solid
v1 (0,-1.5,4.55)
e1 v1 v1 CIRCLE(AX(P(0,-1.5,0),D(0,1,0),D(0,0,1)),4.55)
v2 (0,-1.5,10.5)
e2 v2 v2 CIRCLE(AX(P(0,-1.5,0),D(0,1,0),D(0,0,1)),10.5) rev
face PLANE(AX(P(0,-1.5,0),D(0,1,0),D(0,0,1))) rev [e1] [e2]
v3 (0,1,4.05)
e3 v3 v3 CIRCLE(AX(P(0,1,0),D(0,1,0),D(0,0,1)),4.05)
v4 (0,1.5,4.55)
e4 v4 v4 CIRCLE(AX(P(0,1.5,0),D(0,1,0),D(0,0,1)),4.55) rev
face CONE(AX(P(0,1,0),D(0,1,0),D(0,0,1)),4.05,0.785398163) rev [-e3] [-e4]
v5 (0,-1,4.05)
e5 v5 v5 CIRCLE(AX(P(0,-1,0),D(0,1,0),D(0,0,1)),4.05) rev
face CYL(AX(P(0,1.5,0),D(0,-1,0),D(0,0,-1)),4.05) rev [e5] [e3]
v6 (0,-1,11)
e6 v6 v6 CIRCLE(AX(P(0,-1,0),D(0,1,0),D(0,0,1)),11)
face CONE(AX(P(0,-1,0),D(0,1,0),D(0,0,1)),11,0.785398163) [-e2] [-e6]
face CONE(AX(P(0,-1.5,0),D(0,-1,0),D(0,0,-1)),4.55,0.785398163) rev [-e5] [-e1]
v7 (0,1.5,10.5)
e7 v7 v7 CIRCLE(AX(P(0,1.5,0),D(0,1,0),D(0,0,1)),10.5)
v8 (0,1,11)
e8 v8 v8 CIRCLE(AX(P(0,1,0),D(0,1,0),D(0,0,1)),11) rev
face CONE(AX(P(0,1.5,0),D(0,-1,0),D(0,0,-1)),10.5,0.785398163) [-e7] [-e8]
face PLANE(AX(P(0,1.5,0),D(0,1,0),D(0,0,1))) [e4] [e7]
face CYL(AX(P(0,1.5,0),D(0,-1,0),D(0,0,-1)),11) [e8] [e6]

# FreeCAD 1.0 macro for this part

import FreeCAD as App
import Part
import Sketcher
Q = App.Units.Quantity


def edges_at(feature, points):
    """Names of the edges that pass closest to the given points."""
    edges = feature.Shape.Edges
    near = lambda p: min(range(len(edges)), key=lambda i: edges[i].distToShape(Part.Vertex(*p))[0])
    return sorted({f"Edge{near(p) + 1}" for p in points})

doc = App.newDocument("Part")
body = doc.addObject("PartDesign::Body", "Body")

# Sketch on XZ plane
sketch1 = body.newObject("Sketcher::SketchObject", "Sketch")
sketch1.AttachmentSupport = (doc.getObject("XZ_Plane"), [""])
sketch1.MapMode = "FlatFace"
sketch1.addGeometry([
    Part.Circle(App.Vector(0, 0, 0), App.Vector(0, 0, 1), 11),
    Part.Circle(App.Vector(0, 0, 0), App.Vector(0, 0, 1), 4),
], False)
sketch1.addConstraint([
    Sketcher.Constraint("Coincident", 0, 3, -1, 1),
    Sketcher.Constraint("Coincident", 1, 3, -1, 1),
    Sketcher.Constraint("Diameter", 0, Q("22 mm")),
    Sketcher.Constraint("Diameter", 1, Q("8.1 mm")),
])
pad1 = body.newObject("PartDesign::Pad", "Pad")
pad1.Profile = sketch1
pad1.Length = 3
pad1.Midplane = True
doc.recompute()

chamfer = body.newObject("PartDesign::Chamfer", "Chamfer")
chamfer.Base = (pad1, edges_at(pad1, [
    (0, -1.5, -11),
    (0, 1.5, -11),
    (0, -1.5, -4.05),
    (0, 1.5, -4.05),
]))
chamfer.Size = 0.5

doc.recompute()
